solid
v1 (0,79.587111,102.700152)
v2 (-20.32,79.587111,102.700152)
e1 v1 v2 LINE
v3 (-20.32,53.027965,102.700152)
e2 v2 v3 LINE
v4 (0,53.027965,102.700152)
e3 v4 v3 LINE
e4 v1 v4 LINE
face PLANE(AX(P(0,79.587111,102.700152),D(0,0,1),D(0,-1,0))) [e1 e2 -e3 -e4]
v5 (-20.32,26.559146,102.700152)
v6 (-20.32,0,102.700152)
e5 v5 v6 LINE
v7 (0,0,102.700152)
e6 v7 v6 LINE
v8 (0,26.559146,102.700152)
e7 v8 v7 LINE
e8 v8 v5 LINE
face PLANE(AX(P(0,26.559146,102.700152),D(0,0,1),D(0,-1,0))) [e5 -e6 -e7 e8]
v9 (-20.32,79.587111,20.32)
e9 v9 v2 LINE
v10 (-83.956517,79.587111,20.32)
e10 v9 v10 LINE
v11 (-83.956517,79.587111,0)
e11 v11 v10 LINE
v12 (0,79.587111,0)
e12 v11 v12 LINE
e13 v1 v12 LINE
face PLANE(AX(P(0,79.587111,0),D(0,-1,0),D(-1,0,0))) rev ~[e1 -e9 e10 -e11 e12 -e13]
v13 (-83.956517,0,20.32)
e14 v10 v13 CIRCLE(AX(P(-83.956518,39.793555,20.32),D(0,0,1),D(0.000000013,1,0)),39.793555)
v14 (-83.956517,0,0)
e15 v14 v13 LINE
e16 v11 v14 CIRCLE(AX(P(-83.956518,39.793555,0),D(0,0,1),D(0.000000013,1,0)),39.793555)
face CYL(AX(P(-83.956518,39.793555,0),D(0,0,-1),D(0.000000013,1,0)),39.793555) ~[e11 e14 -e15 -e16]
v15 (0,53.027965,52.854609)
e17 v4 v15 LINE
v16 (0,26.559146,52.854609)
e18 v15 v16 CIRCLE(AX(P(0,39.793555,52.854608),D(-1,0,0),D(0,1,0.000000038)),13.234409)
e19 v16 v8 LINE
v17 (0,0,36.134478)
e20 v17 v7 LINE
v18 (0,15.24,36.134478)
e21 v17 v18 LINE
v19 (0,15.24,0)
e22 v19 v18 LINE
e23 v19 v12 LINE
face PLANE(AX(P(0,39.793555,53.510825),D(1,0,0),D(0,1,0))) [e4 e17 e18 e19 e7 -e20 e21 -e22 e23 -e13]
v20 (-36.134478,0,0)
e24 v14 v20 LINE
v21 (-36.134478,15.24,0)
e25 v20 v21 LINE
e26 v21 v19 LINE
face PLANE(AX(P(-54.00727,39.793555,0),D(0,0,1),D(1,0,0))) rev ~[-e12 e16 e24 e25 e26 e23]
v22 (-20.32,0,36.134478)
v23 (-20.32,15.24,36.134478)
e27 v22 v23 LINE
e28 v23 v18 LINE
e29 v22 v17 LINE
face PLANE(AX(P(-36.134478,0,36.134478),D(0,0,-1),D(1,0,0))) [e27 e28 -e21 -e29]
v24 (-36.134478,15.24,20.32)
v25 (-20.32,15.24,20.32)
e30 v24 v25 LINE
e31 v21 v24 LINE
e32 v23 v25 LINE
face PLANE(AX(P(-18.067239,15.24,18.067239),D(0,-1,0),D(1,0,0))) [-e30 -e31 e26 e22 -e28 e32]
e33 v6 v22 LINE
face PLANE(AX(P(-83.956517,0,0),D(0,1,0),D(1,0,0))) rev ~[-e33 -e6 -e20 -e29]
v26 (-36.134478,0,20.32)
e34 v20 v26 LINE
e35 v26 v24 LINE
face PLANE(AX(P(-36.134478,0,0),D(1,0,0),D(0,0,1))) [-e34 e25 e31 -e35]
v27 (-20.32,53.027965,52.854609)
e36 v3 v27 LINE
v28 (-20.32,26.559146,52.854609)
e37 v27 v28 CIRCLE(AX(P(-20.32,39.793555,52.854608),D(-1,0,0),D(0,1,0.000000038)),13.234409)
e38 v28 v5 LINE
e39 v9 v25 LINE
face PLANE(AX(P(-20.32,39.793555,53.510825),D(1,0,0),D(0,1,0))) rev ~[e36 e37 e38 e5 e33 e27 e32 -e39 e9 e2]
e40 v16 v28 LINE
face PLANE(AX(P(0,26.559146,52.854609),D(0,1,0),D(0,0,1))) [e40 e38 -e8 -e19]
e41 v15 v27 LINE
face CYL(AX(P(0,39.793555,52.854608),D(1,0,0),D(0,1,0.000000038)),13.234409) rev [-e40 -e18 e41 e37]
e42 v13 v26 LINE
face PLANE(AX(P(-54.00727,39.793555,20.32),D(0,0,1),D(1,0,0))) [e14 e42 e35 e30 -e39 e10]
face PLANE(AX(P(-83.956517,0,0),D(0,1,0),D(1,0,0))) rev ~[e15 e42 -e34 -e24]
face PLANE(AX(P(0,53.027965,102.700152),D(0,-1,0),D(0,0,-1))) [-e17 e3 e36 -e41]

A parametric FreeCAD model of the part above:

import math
import FreeCAD as App
import Part
import Sketcher

V = App.Vector
Q = App.Units.Quantity


def add_polygon(sketch, points):
    """Adds a closed chain of lines whose ends are joined by coincident constraints."""
    first, n = sketch.GeometryCount, len(points)
    for a, b in zip(points, points[1:] + points[:1]):
        sketch.addGeometry(Part.LineSegment(App.Vector(*a, 0), App.Vector(*b, 0)), False)
    for i in range(n):
        sketch.addConstraint(Sketcher.Constraint("Coincident", first + i, 2, first + (i + 1) % n, 1))

doc = App.newDocument("Part")
body = doc.addObject("PartDesign::Body", "Body")

# Sketch on YZ plane
sketch1 = body.newObject("Sketcher::SketchObject", "Sketch")
sketch1.AttachmentSupport = (doc.getObject("YZ_Plane"), [""])
sketch1.MapMode = "FlatFace"
sketch1.addGeometry(Part.LineSegment(V(0, 102.700152, 0), V(0, 0, 0)), False)
sketch1.addGeometry(Part.LineSegment(V(0, 0, 0), V(79.587111, 0, 0)), False)
sketch1.addGeometry(Part.LineSegment(V(79.587111, 0, 0), V(79.587111, 102.700152, 0)), False)
sketch1.addGeometry(Part.LineSegment(V(79.587111, 102.700152, 0), V(53.027965, 102.700152, 0)), False)
sketch1.addGeometry(Part.LineSegment(V(53.027965, 102.700152, 0), V(53.027965, 52.854609, 0)), False)
sketch1.addGeometry(Part.ArcOfCircle(Part.Circle(V(39.793555, 52.854608, 0), V(0, 0, 1), 13.234409), math.radians(179.999998), math.radians(360.000002)), False)
sketch1.addGeometry(Part.LineSegment(V(26.559146, 52.854609, 0), V(26.559146, 102.700152, 0)), False)
sketch1.addGeometry(Part.LineSegment(V(26.559146, 102.700152, 0), V(0, 102.700152, 0)), False)
sketch1.addConstraint(Sketcher.Constraint("Coincident", 0, 2, 1, 1))
sketch1.addConstraint(Sketcher.Constraint("Coincident", 1, 2, 2, 1))
sketch1.addConstraint(Sketcher.Constraint("Coincident", 2, 2, 3, 1))
sketch1.addConstraint(Sketcher.Constraint("Coincident", 3, 2, 4, 1))
sketch1.addConstraint(Sketcher.Constraint("Tangent", 4, 2, 5, 2))
sketch1.addConstraint(Sketcher.Constraint("Tangent", 5, 1, 6, 1))
sketch1.addConstraint(Sketcher.Constraint("Coincident", 6, 2, 7, 1))
sketch1.addConstraint(Sketcher.Constraint("Coincident", 7, 2, 0, 1))
sketch1.addConstraint(Sketcher.Constraint("Vertical", 0))
sketch1.addConstraint(Sketcher.Constraint("Horizontal", 1))
sketch1.addConstraint(Sketcher.Constraint("Vertical", 2))
sketch1.addConstraint(Sketcher.Constraint("Horizontal", 3))
sketch1.addConstraint(Sketcher.Constraint("Vertical", 4))
sketch1.addConstraint(Sketcher.Constraint("Vertical", 6))
sketch1.addConstraint(Sketcher.Constraint("Horizontal", 7))
sketch1.addConstraint(Sketcher.Constraint("Coincident", 0, 2, -1, 1))
sketch1.addConstraint(Sketcher.Constraint("Horizontal", 3, 2, 6, 2))
sketch1.addConstraint(Sketcher.Constraint("Equal", 3, 7))
sketch1.addConstraint(Sketcher.Constraint("Radius", 5, Q("13.234409 mm")))
sketch1.addConstraint(Sketcher.Constraint("DistanceX", 1, 1, 1, 2, Q("79.587111 mm")))
sketch1.addConstraint(Sketcher.Constraint("DistanceY", 0, 2, 0, 1, Q("102.700152 mm")))
sketch1.addConstraint(Sketcher.Constraint("DistanceY", 4, 2, 4, 1, Q("49.845543 mm")))
pad1 = body.newObject("PartDesign::Pad", "Pad")
pad1.Profile = sketch1
pad1.Length = Q("0.8 in")
pad1.Reversed = True

# Sketch on XY plane
sketch2 = body.newObject("Sketcher::SketchObject", "Sketch001")
sketch2.AttachmentSupport = (doc.getObject("XY_Plane"), [""])
sketch2.MapMode = "FlatFace"
sketch2.addGeometry(Part.LineSegment(V(-83.956517, 0, 0), V(0, 0, 0)), False)
sketch2.addGeometry(Part.LineSegment(V(0, 0, 0), V(0, 79.587111, 0)), False)
sketch2.addGeometry(Part.LineSegment(V(0, 79.587111, 0), V(-83.956517, 79.587111, 0)), False)
sketch2.addGeometry(Part.ArcOfCircle(Part.Circle(V(-83.956518, 39.793555, 0), V(0, 0, 1), 39.793555), math.radians(89.999999), math.radians(270.000001)), False)
sketch2.addConstraint(Sketcher.Constraint("Coincident", 0, 2, 1, 1))
sketch2.addConstraint(Sketcher.Constraint("Coincident", 1, 2, 2, 1))
sketch2.addConstraint(Sketcher.Constraint("Tangent", 2, 2, 3, 1))
sketch2.addConstraint(Sketcher.Constraint("Tangent", 3, 2, 0, 1))
sketch2.addConstraint(Sketcher.Constraint("Horizontal", 0))
sketch2.addConstraint(Sketcher.Constraint("Vertical", 1))
sketch2.addConstraint(Sketcher.Constraint("Horizontal", 2))
sketch2.addConstraint(Sketcher.Constraint("Coincident", 0, 2, -1, 1))
sketch2.addConstraint(Sketcher.Constraint("Radius", 3, Q("39.793555 mm")))
sketch2.addConstraint(Sketcher.Constraint("DistanceX", 0, 1, 0, 2, Q("83.956517 mm")))
pad2 = body.newObject("PartDesign::Pad", "Pad001")
pad2.Profile = sketch2
pad2.Length = Q("0.8 in")

# Sketch on XZ plane
sketch3 = body.newObject("Sketcher::SketchObject", "Sketch002")
sketch3.AttachmentSupport = (doc.getObject("XZ_Plane"), [""])
sketch3.MapMode = "FlatFace"
add_polygon(sketch3, [(-36.134478, 36.134478), (-36.134478, 0), (0, 0), (0, 36.134478)])  # lines 0-3
sketch3.addConstraint(Sketcher.Constraint("Vertical", 0))
sketch3.addConstraint(Sketcher.Constraint("Horizontal", 1))
sketch3.addConstraint(Sketcher.Constraint("Vertical", 2))
sketch3.addConstraint(Sketcher.Constraint("Horizontal", 3))
sketch3.addConstraint(Sketcher.Constraint("Coincident", 1, 2, -1, 1))
sketch3.addConstraint(Sketcher.Constraint("Equal", 3, 0))
sketch3.addConstraint(Sketcher.Constraint("DistanceX", 1, 1, 1, 2, Q("36.134478 mm")))
pocket1 = body.newObject("PartDesign::Pocket", "Pocket")
pocket1.Profile = sketch3
pocket1.Length = Q("0.6 in")

doc.recompute()
